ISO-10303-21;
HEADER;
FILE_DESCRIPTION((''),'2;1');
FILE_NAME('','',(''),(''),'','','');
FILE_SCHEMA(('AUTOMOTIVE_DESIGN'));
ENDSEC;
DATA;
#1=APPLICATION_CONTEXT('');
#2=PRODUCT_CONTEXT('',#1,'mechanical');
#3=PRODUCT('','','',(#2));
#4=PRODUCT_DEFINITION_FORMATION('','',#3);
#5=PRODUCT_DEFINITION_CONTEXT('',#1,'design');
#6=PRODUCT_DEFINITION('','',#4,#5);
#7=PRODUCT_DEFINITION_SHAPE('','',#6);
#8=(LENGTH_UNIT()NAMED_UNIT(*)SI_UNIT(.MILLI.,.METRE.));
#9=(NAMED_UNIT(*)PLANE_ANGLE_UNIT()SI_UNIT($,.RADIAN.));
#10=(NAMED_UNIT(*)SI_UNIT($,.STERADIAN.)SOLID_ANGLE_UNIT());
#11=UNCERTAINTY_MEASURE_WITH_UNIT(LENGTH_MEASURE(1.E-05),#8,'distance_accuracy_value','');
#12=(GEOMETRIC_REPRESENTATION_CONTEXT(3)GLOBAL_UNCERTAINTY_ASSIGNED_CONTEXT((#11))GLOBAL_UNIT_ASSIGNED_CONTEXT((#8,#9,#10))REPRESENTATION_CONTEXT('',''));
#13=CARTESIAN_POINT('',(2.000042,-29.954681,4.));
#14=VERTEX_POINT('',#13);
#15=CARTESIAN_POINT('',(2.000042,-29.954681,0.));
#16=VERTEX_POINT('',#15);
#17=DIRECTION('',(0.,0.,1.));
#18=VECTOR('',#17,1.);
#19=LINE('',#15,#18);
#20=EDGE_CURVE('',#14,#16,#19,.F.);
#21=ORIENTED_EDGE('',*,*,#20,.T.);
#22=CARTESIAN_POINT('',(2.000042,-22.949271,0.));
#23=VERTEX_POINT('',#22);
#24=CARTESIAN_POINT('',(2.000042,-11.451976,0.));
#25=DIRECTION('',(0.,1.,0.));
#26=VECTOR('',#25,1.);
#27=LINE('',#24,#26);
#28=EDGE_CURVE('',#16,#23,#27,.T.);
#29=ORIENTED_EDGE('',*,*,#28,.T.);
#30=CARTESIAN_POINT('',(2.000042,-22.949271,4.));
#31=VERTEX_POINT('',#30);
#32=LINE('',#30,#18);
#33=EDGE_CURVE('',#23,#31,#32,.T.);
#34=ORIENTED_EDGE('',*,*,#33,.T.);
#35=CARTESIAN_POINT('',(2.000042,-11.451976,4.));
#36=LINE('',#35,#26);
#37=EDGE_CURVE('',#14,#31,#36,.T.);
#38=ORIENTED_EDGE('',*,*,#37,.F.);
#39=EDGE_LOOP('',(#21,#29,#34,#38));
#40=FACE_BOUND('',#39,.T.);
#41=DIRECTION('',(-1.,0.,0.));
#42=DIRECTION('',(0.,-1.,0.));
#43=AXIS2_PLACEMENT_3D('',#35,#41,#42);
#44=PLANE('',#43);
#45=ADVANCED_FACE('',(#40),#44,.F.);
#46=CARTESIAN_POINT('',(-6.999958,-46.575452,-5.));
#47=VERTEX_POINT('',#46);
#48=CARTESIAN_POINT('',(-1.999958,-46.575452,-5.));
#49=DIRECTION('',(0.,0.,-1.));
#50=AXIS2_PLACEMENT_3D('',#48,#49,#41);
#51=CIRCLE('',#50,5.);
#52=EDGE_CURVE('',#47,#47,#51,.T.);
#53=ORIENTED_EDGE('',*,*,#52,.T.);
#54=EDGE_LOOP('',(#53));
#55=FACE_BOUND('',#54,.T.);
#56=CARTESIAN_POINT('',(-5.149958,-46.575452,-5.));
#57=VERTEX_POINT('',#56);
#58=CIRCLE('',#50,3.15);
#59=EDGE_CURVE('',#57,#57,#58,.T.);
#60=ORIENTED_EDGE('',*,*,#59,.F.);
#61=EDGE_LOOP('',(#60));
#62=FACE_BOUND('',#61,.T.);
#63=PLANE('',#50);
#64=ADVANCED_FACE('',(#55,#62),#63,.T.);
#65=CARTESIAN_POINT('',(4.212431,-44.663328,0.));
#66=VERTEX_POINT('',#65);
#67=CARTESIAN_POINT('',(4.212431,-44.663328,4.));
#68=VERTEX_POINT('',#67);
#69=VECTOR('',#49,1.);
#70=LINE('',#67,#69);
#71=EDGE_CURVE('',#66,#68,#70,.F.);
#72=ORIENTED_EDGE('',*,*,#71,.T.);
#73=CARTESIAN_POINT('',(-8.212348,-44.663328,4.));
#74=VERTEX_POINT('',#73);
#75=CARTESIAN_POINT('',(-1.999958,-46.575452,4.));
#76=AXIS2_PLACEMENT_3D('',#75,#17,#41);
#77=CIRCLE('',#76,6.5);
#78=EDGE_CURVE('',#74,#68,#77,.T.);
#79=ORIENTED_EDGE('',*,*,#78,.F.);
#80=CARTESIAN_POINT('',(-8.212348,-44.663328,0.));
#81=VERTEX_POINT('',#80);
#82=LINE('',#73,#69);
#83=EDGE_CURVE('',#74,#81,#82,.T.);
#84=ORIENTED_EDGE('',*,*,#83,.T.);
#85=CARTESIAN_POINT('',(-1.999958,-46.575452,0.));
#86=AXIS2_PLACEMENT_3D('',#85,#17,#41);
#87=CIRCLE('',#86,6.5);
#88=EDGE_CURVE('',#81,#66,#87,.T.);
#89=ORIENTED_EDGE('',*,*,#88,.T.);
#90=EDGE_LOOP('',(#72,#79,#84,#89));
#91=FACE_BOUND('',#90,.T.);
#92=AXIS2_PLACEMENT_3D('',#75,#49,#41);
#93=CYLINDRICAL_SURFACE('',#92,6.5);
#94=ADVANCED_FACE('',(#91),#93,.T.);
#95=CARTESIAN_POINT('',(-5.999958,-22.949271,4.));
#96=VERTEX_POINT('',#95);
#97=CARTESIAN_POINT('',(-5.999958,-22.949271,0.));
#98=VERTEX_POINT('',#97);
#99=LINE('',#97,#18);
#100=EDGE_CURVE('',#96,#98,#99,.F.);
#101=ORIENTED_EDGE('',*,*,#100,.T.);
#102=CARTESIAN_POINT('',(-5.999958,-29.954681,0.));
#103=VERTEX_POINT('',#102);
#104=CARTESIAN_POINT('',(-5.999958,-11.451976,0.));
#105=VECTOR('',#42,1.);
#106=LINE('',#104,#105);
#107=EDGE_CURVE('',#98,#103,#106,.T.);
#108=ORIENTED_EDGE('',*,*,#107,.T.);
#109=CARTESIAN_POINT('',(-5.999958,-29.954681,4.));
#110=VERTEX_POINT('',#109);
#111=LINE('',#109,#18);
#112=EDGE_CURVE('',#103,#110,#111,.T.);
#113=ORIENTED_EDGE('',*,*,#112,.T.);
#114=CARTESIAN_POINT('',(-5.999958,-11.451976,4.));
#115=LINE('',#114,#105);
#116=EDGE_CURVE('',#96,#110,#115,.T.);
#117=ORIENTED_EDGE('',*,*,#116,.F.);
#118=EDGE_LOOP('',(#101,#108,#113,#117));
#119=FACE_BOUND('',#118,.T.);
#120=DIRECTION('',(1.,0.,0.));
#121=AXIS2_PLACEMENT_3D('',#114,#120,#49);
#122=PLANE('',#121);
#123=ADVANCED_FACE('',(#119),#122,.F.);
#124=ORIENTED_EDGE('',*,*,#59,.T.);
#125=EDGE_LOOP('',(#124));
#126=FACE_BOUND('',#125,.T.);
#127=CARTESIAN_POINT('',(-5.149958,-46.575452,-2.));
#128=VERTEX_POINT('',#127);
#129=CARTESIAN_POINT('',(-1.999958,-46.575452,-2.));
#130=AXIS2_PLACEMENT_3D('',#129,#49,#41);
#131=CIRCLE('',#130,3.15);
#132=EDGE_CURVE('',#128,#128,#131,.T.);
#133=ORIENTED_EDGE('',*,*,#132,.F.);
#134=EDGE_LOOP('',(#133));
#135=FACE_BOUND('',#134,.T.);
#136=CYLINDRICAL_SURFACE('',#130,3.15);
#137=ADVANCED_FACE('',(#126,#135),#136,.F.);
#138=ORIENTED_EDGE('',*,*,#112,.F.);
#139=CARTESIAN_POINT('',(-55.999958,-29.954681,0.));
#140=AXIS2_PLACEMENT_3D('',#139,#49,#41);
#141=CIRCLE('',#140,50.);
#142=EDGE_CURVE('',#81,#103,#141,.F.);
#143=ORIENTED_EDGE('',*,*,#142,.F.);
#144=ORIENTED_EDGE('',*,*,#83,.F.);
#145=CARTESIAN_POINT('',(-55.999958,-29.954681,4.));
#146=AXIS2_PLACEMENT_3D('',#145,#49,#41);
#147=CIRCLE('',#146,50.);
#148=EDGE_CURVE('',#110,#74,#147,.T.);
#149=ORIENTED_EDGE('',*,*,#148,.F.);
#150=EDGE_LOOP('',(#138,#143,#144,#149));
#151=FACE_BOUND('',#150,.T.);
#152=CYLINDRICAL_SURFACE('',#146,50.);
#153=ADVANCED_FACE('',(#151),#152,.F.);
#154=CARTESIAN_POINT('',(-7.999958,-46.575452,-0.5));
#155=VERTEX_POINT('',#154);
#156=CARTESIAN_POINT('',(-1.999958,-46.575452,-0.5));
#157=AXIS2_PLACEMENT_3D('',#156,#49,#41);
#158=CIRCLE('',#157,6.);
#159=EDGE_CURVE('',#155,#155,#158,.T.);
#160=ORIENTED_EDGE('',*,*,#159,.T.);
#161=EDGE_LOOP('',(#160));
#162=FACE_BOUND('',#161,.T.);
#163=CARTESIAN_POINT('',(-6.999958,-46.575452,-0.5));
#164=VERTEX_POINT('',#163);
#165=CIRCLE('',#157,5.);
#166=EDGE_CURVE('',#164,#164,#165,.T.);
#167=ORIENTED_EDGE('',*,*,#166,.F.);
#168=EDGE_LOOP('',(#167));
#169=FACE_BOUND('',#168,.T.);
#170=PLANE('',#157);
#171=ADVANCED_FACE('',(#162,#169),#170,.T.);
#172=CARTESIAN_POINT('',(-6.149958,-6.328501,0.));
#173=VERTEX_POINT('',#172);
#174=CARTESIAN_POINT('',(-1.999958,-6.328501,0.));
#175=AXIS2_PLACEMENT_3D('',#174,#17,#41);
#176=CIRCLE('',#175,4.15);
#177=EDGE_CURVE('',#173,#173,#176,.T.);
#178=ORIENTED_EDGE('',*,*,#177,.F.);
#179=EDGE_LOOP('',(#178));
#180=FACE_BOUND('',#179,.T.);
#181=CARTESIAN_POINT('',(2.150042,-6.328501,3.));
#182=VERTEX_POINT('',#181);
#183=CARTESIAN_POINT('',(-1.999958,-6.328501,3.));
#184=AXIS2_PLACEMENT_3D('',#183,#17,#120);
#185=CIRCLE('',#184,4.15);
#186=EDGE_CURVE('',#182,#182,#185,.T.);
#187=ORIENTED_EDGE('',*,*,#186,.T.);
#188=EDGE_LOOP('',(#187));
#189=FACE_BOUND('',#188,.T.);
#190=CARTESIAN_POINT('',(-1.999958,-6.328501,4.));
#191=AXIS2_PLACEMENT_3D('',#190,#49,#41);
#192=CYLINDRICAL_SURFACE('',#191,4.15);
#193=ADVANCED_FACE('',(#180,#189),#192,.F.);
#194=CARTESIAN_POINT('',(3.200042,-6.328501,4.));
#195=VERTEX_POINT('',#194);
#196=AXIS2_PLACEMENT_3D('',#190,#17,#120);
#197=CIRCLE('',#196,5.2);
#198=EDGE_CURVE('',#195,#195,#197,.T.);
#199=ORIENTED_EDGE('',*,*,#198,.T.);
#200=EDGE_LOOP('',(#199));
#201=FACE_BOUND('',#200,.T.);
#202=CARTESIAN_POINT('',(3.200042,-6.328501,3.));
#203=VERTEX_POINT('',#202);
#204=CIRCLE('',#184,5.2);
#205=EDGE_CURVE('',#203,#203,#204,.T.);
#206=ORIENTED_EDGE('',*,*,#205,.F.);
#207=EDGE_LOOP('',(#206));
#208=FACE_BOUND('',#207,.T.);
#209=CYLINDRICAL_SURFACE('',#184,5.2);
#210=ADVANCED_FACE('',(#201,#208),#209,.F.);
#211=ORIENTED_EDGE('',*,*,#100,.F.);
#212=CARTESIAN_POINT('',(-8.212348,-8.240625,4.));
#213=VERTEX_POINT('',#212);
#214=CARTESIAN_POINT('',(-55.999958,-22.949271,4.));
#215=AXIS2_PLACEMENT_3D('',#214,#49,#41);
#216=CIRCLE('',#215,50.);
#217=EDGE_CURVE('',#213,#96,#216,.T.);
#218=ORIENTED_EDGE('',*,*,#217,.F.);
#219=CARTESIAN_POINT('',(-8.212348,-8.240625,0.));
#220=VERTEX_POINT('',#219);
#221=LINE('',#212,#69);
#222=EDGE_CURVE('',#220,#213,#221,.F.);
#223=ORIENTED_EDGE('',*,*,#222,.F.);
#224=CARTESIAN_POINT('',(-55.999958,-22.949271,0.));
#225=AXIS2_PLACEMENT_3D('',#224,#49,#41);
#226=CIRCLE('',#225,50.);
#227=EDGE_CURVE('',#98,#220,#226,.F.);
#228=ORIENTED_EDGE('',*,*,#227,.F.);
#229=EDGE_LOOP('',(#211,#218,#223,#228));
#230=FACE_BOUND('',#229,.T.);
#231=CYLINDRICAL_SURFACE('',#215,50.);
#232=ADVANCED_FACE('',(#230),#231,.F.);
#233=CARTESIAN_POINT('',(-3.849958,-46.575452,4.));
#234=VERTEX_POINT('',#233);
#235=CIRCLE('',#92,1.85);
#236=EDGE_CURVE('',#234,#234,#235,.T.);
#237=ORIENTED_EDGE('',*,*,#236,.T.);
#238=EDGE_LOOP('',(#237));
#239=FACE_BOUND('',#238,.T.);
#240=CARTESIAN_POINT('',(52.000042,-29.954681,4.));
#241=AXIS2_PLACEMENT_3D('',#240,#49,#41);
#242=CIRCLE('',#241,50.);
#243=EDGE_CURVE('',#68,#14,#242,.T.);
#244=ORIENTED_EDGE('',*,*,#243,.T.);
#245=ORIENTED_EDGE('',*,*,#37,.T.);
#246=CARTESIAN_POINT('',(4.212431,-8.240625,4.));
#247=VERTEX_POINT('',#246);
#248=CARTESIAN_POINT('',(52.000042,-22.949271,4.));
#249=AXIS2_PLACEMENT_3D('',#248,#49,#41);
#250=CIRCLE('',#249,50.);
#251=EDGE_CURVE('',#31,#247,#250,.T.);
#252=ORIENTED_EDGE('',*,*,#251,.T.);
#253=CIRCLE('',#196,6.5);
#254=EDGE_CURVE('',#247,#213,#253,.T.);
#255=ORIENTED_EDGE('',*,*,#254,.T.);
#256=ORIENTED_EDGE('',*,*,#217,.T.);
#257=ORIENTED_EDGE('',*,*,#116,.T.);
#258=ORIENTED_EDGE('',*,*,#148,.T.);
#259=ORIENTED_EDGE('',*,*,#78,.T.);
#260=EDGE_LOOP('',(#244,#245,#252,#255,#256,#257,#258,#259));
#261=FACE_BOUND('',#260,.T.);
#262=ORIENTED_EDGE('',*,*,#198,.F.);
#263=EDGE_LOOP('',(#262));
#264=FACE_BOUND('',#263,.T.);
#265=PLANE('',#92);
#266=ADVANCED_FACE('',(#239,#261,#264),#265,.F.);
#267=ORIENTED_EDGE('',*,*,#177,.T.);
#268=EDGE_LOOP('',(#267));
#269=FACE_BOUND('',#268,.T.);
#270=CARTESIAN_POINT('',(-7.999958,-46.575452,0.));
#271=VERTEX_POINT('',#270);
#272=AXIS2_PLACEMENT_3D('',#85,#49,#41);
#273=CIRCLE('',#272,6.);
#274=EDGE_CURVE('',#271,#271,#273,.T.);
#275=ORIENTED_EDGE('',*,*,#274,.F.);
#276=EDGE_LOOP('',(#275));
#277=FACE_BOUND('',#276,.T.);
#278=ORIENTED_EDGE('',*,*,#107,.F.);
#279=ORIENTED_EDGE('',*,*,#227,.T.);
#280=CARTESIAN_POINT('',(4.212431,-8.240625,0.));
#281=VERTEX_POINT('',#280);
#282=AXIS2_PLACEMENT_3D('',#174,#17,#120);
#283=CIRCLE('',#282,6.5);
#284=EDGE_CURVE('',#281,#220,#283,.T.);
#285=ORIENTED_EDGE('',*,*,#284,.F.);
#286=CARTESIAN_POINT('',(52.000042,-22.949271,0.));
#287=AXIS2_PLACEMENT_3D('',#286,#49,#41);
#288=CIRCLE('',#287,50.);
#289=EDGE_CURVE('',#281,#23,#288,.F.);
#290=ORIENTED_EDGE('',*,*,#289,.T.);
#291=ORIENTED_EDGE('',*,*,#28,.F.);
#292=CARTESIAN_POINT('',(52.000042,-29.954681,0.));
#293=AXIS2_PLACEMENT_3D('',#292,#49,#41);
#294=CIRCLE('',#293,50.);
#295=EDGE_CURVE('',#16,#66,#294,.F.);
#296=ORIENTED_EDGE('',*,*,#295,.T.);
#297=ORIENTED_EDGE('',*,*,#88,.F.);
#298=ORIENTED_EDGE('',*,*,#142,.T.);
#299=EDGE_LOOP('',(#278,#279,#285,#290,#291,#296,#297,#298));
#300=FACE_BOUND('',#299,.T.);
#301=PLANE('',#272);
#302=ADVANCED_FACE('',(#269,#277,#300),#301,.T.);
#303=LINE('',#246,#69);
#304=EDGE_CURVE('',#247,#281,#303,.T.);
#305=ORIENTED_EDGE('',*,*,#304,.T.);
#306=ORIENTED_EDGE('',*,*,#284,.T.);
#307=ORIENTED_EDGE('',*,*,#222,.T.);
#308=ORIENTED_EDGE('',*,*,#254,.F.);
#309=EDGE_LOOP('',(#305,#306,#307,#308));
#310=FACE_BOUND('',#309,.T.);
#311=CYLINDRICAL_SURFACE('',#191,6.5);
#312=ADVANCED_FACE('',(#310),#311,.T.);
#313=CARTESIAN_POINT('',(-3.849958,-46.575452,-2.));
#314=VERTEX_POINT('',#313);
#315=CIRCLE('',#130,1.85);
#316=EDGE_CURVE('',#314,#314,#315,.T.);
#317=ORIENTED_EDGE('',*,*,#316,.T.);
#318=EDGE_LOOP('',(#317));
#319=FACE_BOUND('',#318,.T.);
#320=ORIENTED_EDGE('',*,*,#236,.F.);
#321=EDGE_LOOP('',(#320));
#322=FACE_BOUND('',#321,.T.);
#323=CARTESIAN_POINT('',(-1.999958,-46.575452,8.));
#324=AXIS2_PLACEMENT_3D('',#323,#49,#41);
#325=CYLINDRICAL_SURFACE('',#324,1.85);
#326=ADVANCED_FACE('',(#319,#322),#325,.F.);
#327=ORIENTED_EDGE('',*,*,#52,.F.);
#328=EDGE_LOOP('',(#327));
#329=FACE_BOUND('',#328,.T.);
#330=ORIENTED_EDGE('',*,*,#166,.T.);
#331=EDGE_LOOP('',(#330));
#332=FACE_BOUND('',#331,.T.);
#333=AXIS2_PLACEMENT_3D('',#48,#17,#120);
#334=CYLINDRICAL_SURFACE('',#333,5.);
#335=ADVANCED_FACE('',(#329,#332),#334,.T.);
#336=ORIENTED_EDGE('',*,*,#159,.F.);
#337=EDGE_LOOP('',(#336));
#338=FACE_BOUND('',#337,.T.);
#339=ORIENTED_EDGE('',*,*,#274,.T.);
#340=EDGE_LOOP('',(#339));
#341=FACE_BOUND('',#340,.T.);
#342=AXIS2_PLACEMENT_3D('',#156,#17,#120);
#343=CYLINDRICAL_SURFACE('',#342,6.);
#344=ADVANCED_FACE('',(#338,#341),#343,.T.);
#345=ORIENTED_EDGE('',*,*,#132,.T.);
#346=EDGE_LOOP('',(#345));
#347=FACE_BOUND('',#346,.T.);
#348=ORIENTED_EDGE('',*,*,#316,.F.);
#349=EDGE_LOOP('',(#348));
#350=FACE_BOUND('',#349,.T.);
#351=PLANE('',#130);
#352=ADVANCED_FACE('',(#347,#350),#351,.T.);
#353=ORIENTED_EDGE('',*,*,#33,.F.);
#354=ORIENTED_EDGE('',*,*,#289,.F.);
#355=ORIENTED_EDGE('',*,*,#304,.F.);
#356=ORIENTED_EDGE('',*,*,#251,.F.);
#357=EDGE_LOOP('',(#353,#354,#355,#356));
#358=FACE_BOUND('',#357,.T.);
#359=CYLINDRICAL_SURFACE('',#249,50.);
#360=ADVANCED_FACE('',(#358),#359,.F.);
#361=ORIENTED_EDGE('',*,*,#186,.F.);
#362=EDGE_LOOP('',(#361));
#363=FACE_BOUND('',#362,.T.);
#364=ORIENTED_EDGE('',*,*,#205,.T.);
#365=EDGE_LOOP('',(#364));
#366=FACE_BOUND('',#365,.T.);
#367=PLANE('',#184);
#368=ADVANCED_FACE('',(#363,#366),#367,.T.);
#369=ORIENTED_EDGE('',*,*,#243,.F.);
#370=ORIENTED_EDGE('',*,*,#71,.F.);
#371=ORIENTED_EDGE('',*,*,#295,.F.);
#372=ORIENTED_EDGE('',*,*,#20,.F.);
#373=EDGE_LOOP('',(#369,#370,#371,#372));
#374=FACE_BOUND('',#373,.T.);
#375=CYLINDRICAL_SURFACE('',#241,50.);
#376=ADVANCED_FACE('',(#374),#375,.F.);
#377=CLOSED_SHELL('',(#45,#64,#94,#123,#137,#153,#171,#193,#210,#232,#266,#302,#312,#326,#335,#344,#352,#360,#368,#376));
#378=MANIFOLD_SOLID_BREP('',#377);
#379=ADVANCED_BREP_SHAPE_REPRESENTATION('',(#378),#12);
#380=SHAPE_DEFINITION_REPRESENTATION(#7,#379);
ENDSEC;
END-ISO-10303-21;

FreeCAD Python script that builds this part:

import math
import FreeCAD as App
import Part
import Sketcher
Q = App.Units.Quantity


def edges_at(feature, points):
    """Names of the edges that pass closest to the given points."""
    edges = feature.Shape.Edges
    near = lambda p: min(range(len(edges)), key=lambda i: edges[i].distToShape(Part.Vertex(*p))[0])
    return sorted({f"Edge{near(p) + 1}" for p in points})

doc = App.newDocument("Part")
body = doc.addObject("PartDesign::Body", "Body")

# Sketch on XY plane
sketch1 = doc.addObject("Sketcher::SketchObject", "Sketch")
body.addObject(sketch1)
sketch1.AttachmentSupport = (doc.XY_Plane, [""])
sketch1.MapMode = "FlatFace"
sketch1.addGeometry([
    Part.LineSegment(App.Vector(-6, -11.5, 0), App.Vector(-6, -41.5, 0)),  # 0
    Part.ArcOfCircle(Part.Circle(App.Vector(-2, -46.6, 0), App.Vector(0, 0, 1), 6.5), math.radians(128), math.radians(412)),  # 1
    Part.LineSegment(App.Vector(2, -41.5, 0), App.Vector(2, -11.5, 0)),  # 2
    Part.ArcOfCircle(Part.Circle(App.Vector(-2, -6.3, 0), App.Vector(0, 0, 1), 6.5), math.radians(-52), math.radians(232)),  # 3
    Part.Circle(App.Vector(-2, -6.3, 0), App.Vector(0, 0, 1), 4.2),  # 4
], False)
sketch1.addConstraint([
    Sketcher.Constraint("Coincident", 0, 2, 1, 1),
    Sketcher.Constraint("Coincident", 1, 2, 2, 1),
    Sketcher.Constraint("Coincident", 2, 2, 3, 1),
    Sketcher.Constraint("Coincident", 3, 2, 0, 1),
    Sketcher.Constraint("Vertical", 0),
    Sketcher.Constraint("Vertical", 2),
    Sketcher.Constraint("Coincident", 4, 3, 3, 3),
    Sketcher.Constraint("Equal", 1, 3),
    Sketcher.Constraint("Horizontal", 0, 2, 1, 2),
    Sketcher.Constraint("Horizontal", 2, 2, 3, 2),
    Sketcher.Constraint("Diameter", 4, Q("8.3 mm")),
    Sketcher.Constraint("Radius", 1, Q("6.5 mm")),
    Sketcher.Constraint("DistanceY", 0, 2, 0, 1, Q("30 mm")),
    Sketcher.Constraint("DistanceX", 0, 2, 1, 3, Q("4 mm")),
    Sketcher.Constraint("DistanceY", 3, 3, -1, 1, Q("6.328501 mm")),
    Sketcher.Constraint("DistanceX", 1, 3, -1, 1, Q("1.999958 mm")),
])
pad1 = doc.addObject("PartDesign::Pad", "Pad")
body.addObject(pad1)
pad1.Profile = sketch1
pad1.Length = 4
doc.recompute()

fillet = doc.addObject("PartDesign::Fillet", "Fillet")
body.addObject(fillet)
fillet.Base = (pad1, edges_at(pad1, [
    (-6, -41.452, 2),
    (-6, -11.452, 2),
    (2, -11.452, 2),
    (2, -41.452, 2),
]))
fillet.Radius = 50

# Sketch on XY plane
sketch2 = doc.addObject("Sketcher::SketchObject", "Sketch001")
body.addObject(sketch2)
sketch2.AttachmentSupport = (doc.XY_Plane, [""])
sketch2.MapMode = "FlatFace"
sketch2.addGeometry(Part.Circle(App.Vector(-2, -47, 0), App.Vector(0, 0, 1), 5), False)
sketch2.addConstraint([
    Sketcher.Constraint("Diameter", 0, Q("10 mm")),
    Sketcher.Constraint("DistanceX", 0, 3, -1, 1, Q("1.999958 mm")),
    Sketcher.Constraint("DistanceY", 0, 3, -1, 1, Q("46.575452 mm")),
])
pad2 = doc.addObject("PartDesign::Pad", "Pad001")
body.addObject(pad2)
pad2.Profile = sketch2
pad2.Length = 5
pad2.Reversed = True

# Sketch on XY plane
sketch3 = doc.addObject("Sketcher::SketchObject", "Sketch002")
body.addObject(sketch3)
sketch3.AttachmentSupport = (doc.XY_Plane, [""])
sketch3.MapMode = "FlatFace"
sketch3.addGeometry(Part.Circle(App.Vector(-2, -47, 0), App.Vector(0, 0, 1), 6), False)
sketch3.addConstraint([
    Sketcher.Constraint("Diameter", 0, Q("12 mm")),
    Sketcher.Constraint("DistanceX", 0, 3, -1, 1, Q("1.999958 mm")),
    Sketcher.Constraint("DistanceY", 0, 3, -1, 1, Q("46.575452 mm")),
])
pad3 = doc.addObject("PartDesign::Pad", "Pad002")
body.addObject(pad3)
pad3.Profile = sketch3
pad3.Length = 0.5
pad3.Reversed = True

# Sketch on XY plane
sketch4 = doc.addObject("Sketcher::SketchObject", "Sketch003")
body.addObject(sketch4)
sketch4.AttachmentSupport = (doc.XY_Plane, [""])
sketch4.MapMode = "FlatFace"
sketch4.AttachmentOffset = App.Placement(App.Vector(0, 0, -5), App.Rotation())
sketch4.addGeometry(Part.Circle(App.Vector(-2, -46.6, 0), App.Vector(0, 0, 1), 3.1), False)
sketch4.addConstraint([
    Sketcher.Constraint("Diameter", 0, Q("6.3 mm")),
    Sketcher.Constraint("DistanceX", 0, 3, -1, 1, Q("1.999958 mm")),
    Sketcher.Constraint("DistanceY", 0, 3, -1, 1, Q("46.575452 mm")),
])
pocket1 = doc.addObject("PartDesign::Pocket", "Pocket")
body.addObject(pocket1)
pocket1.Profile = sketch4
pocket1.Length = 3
pocket1.Reversed = True

# Sketch on XY plane
sketch5 = doc.addObject("Sketcher::SketchObject", "Sketch004")
body.addObject(sketch5)
sketch5.AttachmentSupport = (doc.XY_Plane, [""])
sketch5.MapMode = "FlatFace"
sketch5.AttachmentOffset = App.Placement(App.Vector(0, 0, -2), App.Rotation())
sketch5.addGeometry(Part.Circle(App.Vector(-2, -46.6, 0), App.Vector(0, 0, 1), 1.9), False)
sketch5.addConstraint([
    Sketcher.Constraint("Diameter", 0, Q("3.7 mm")),
    Sketcher.Constraint("DistanceX", 0, 3, -1, 1, Q("1.999958 mm")),
    Sketcher.Constraint("DistanceY", 0, 3, -1, 1, Q("46.575452 mm")),
])
pocket2 = doc.addObject("PartDesign::Pocket", "Pocket001")
body.addObject(pocket2)
pocket2.Profile = sketch5
pocket2.Length = 10
pocket2.Reversed = True

# Sketch on XY plane
sketch6 = doc.addObject("Sketcher::SketchObject", "Sketch005")
body.addObject(sketch6)
sketch6.AttachmentSupport = (doc.XY_Plane, [""])
sketch6.MapMode = "FlatFace"
sketch6.AttachmentOffset = App.Placement(App.Vector(0, 0, 4), App.Rotation())
sketch6.addGeometry(Part.Circle(App.Vector(-2, -6, 0), App.Vector(0, 0, 1), 5), False)
sketch6.addConstraint([
    Sketcher.Constraint("Diameter", 0, Q("10.4 mm")),
    Sketcher.Constraint("DistanceY", 0, 3, -1, 1, Q("6.328501 mm")),
    Sketcher.Constraint("DistanceX", 0, 3, -1, 1, Q("1.999958 mm")),
])
pocket3 = doc.addObject("PartDesign::Pocket", "Pocket002")
body.addObject(pocket3)
pocket3.Profile = sketch6
pocket3.Length = 1

doc.recompute()
